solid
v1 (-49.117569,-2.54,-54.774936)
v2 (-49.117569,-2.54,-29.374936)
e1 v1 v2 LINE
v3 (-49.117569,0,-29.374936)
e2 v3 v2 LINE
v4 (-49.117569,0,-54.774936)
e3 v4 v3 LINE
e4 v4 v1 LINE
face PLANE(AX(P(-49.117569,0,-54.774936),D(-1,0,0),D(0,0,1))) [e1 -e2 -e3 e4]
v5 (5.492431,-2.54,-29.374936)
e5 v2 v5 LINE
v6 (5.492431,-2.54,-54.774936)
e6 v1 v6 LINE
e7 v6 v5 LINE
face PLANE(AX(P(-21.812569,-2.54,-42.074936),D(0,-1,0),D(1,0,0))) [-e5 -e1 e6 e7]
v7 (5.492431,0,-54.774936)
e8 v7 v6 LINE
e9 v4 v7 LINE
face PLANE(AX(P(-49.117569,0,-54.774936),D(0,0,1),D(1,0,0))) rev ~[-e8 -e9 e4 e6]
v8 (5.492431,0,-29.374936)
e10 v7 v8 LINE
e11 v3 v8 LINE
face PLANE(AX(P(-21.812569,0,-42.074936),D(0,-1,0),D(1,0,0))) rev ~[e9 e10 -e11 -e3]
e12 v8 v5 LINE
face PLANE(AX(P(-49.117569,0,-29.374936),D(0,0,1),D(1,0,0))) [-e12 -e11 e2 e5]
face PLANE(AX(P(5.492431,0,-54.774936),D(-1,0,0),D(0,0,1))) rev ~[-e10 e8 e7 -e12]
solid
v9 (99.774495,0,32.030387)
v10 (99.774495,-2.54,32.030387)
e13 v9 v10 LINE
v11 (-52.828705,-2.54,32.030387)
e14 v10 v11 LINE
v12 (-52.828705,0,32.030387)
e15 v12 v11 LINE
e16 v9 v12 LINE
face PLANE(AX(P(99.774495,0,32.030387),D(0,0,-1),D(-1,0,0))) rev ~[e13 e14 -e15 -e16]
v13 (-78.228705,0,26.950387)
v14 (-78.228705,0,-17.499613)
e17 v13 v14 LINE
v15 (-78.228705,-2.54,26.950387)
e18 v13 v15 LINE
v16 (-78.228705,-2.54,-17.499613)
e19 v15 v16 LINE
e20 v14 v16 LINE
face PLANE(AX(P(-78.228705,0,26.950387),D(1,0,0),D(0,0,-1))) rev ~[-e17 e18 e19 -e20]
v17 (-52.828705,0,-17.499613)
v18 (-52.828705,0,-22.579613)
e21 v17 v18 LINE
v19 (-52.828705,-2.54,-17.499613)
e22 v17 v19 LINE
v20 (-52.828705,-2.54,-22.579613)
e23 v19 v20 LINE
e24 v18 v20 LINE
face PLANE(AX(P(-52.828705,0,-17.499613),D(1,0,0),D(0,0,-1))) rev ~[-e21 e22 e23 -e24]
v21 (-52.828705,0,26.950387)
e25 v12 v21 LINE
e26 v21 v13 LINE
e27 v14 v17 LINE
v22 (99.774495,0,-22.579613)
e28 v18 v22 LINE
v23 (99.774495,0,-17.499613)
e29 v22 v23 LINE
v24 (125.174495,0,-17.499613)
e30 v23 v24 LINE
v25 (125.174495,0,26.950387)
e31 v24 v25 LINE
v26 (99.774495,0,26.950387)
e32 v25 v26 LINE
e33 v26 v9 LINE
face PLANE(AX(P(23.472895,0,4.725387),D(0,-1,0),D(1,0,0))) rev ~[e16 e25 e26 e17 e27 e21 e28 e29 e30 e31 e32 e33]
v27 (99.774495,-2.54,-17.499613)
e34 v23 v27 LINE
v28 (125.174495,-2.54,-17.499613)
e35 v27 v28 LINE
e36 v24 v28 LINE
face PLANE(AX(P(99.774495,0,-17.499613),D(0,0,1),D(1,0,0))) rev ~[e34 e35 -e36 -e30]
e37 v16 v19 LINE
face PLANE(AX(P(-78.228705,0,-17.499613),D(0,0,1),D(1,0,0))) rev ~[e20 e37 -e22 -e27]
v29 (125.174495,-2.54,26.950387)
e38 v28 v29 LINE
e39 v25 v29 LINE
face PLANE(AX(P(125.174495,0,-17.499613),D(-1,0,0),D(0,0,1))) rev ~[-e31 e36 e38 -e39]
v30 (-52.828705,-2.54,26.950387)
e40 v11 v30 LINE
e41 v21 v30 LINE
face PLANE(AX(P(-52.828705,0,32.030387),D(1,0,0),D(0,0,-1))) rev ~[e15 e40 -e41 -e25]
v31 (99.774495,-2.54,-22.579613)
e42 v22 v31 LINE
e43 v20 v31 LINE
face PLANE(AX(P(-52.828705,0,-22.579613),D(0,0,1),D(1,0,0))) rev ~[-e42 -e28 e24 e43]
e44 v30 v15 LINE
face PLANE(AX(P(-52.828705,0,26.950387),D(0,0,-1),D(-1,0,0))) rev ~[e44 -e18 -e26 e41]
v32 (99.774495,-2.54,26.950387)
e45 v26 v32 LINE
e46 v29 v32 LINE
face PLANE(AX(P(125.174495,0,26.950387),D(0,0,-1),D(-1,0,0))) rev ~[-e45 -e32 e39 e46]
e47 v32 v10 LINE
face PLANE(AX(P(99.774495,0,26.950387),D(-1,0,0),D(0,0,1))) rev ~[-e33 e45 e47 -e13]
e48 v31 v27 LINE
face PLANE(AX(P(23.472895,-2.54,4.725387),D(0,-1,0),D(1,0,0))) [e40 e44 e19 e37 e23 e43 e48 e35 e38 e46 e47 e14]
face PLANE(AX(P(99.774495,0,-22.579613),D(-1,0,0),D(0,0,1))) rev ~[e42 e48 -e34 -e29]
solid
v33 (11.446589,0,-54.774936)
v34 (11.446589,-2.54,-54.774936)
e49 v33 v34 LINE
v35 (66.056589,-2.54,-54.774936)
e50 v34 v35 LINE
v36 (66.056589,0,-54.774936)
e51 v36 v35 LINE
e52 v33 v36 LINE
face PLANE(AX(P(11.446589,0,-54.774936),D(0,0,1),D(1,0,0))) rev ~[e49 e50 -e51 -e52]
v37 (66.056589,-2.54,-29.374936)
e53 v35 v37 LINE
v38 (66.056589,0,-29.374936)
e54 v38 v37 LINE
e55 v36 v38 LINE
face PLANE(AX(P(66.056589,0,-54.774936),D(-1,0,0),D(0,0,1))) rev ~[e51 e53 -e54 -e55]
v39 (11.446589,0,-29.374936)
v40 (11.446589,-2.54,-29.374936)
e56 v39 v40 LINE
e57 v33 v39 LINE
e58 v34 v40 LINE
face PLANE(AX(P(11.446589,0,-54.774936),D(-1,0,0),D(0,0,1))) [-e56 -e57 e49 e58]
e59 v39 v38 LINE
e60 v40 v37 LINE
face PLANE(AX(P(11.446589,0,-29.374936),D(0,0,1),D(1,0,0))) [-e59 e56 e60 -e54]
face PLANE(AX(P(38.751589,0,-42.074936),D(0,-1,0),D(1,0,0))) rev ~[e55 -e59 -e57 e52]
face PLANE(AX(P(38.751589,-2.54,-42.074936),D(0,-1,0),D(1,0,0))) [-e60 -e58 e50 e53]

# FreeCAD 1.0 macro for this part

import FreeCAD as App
import Part
import Sketcher

V = App.Vector
Q = App.Units.Quantity


def add_polygon(sketch, points):
    """Adds a closed chain of lines whose ends are joined by coincident constraints."""
    first, n = sketch.GeometryCount, len(points)
    for a, b in zip(points, points[1:] + points[:1]):
        sketch.addGeometry(Part.LineSegment(App.Vector(*a, 0), App.Vector(*b, 0)), False)
    for i in range(n):
        sketch.addConstraint(Sketcher.Constraint("Coincident", first + i, 2, first + (i + 1) % n, 1))

doc = App.newDocument("Part")
params = doc.addObject("Spreadsheet::Sheet", "Params")
for row, (alias, value) in enumerate([
    ("sketch1_width", "1 in"),
    ("sketch1_height", "0.2 in"),
    ("sketch1_width2", "2.15 in"),
    ("sketch1_height2", "1.75 in"),
    ("sketch1_width3", "6.008 in"),
    ("pad1_length", "0.1 in"),
], start=1):
    params.set(f"A{row}", alias)
    params.set(f"B{row}", "=" + value)
    params.setAlias(f"B{row}", alias)

body = doc.addObject("PartDesign::Body", "Body")
body.AllowCompound = True

# Sketch on XZ plane
sketch1 = doc.addObject("Sketcher::SketchObject", "Sketch")
body.addObject(sketch1)
sketch1.AttachmentSupport = (doc.XZ_Plane, [""])
sketch1.MapMode = "FlatFace"
add_polygon(sketch1, [(-52.828705, -17.499613), (-52.828705, -22.579613), (99.774495, -22.579613), (99.774495, -17.499613), (125.174495, -17.499613), (125.174495, 26.950387), (99.774495, 26.950387), (99.774495, 32.030387), (-52.828705, 32.030387), (-52.828705, 26.950387), (-78.228705, 26.950387), (-78.228705, -17.499613)])  # lines 0-11
add_polygon(sketch1, [(11.446589, -29.374936), (11.446589, -54.774936), (66.056589, -54.774936), (66.056589, -29.374936)])  # lines 12-15
add_polygon(sketch1, [(-49.117569, -29.374936), (-49.117569, -54.774936), (5.492431, -54.774936), (5.492431, -29.374936)])  # lines 16-19
sketch1.addConstraint([
    Sketcher.Constraint("Vertical", 0),
    Sketcher.Constraint("Horizontal", 1),
    Sketcher.Constraint("Vertical", 2),
    Sketcher.Constraint("Horizontal", 3),
    Sketcher.Constraint("Vertical", 4),
    Sketcher.Constraint("Horizontal", 5),
    Sketcher.Constraint("Vertical", 6),
    Sketcher.Constraint("Horizontal", 7),
    Sketcher.Constraint("Vertical", 8),
    Sketcher.Constraint("Horizontal", 9),
    Sketcher.Constraint("Vertical", 10),
    Sketcher.Constraint("Horizontal", 11),
    Sketcher.Constraint("Vertical", 12),
    Sketcher.Constraint("Horizontal", 13),
    Sketcher.Constraint("Vertical", 14),
    Sketcher.Constraint("Horizontal", 15),
    Sketcher.Constraint("Vertical", 16),
    Sketcher.Constraint("Horizontal", 17),
    Sketcher.Constraint("Vertical", 18),
    Sketcher.Constraint("Horizontal", 19),
    Sketcher.Constraint("Horizontal", 5, 2, 8, 2),
    Sketcher.Constraint("Horizontal", 3, 2, 10, 2),
    Sketcher.Constraint("Horizontal", 13, 2, 16, 2),
    Sketcher.Constraint("Horizontal", 15, 2, 18, 2),
    Sketcher.Constraint("Vertical", 2, 2, 5, 2),
    Sketcher.Constraint("Vertical", 0, 2, 7, 2),
    Sketcher.Constraint("Equal", 5, 9),
    Sketcher.Constraint("Equal", 15, 17),
    Sketcher.Constraint("Equal", 2, 6),
    Sketcher.Constraint("Equal", 11, 12),
    Sketcher.Constraint("DistanceX", 3, 1, 3, 2, Q("1 in")),
    Sketcher.Constraint("DistanceY", 0, 2, 0, 1, Q("0.2 in")),
    Sketcher.Constraint("DistanceX", 13, 1, 13, 2, Q("2.15 in")),
    Sketcher.Constraint("DistanceY", 4, 1, 4, 2, Q("1.75 in")),
    Sketcher.Constraint("DistanceX", 1, 1, 1, 2, Q("6.008 in")),
    Sketcher.Constraint("DistanceX", -1, 1, 12, 2, Q("11.446589 mm")),
    Sketcher.Constraint("DistanceX", 16, 2, -1, 1, Q("49.117569 mm")),
    Sketcher.Constraint("DistanceX", 0, 2, -1, 1, Q("52.828705 mm")),
    Sketcher.Constraint("DistanceY", 0, 2, -1, 1, Q("22.579613 mm")),
    Sketcher.Constraint("DistanceY", 12, 2, -1, 1, Q("54.774936 mm")),
])
sketch1.setExpression("Constraints[50]", "Params.sketch1_width")
sketch1.setExpression("Constraints[51]", "Params.sketch1_height")
sketch1.setExpression("Constraints[52]", "Params.sketch1_width2")
sketch1.setExpression("Constraints[53]", "Params.sketch1_height2")
sketch1.setExpression("Constraints[54]", "Params.sketch1_width3")
pad1 = doc.addObject("PartDesign::Pad", "Pad")
body.addObject(pad1)
pad1.Profile = sketch1
pad1.setExpression("Length", "Params.pad1_length")

doc.recompute()
